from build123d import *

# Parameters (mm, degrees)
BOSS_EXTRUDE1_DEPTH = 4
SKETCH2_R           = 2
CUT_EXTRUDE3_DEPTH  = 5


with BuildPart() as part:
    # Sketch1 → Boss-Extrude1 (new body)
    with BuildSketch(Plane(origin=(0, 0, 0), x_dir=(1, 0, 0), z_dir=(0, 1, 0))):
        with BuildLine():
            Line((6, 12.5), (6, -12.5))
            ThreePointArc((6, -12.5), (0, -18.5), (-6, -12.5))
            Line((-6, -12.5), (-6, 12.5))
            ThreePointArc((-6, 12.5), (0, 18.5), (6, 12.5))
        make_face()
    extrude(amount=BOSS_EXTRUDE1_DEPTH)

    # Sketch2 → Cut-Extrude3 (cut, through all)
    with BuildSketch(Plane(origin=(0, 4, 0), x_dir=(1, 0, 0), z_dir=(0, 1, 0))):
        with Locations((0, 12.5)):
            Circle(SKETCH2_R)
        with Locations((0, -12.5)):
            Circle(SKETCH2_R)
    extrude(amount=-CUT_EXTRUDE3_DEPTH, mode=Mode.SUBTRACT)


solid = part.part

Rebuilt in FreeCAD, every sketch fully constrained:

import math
import FreeCAD as App
import Part
import Sketcher
Q = App.Units.Quantity

doc = App.newDocument("Part")
body = doc.addObject("PartDesign::Body", "Body")

# Sketch on XZ plane
sketch1 = body.newObject("Sketcher::SketchObject", "Sketch")
sketch1.AttachmentSupport = (doc.getObject("XZ_Plane"), [""])
sketch1.MapMode = "FlatFace"
sketch1.addGeometry([
    Part.LineSegment(App.Vector(6, 12, 0), App.Vector(6, -12, 0)),
    Part.ArcOfCircle(Part.Circle(App.Vector(0, -12, 0), App.Vector(0, 0, 1), 6), math.radians(180), math.radians(360)),
    Part.LineSegment(App.Vector(-6, -12, 0), App.Vector(-6, 12, 0)),
    Part.ArcOfCircle(Part.Circle(App.Vector(0, 12, 0), App.Vector(0, 0, 1), 6), math.radians(0), math.radians(180)),
], False)
sketch1.addConstraint([
    Sketcher.Constraint("Tangent", 0, 2, 1, 2),
    Sketcher.Constraint("Tangent", 1, 1, 2, 1),
    Sketcher.Constraint("Tangent", 2, 2, 3, 2),
    Sketcher.Constraint("Tangent", 3, 1, 0, 1),
    Sketcher.Constraint("Vertical", 0),
    Sketcher.Constraint("Vertical", 2),
    Sketcher.Constraint("Symmetric", 1, 3, 3, 3, -1, 1),
    Sketcher.Constraint("Radius", 1, Q("6 mm")),
    Sketcher.Constraint("DistanceY", 0, 2, 0, 1, Q("25 mm")),
])
pad1 = body.newObject("PartDesign::Pad", "Pad")
pad1.Profile = sketch1
pad1.Length = 4
pad1.Reversed = True

# Sketch on XZ plane
sketch2 = body.newObject("Sketcher::SketchObject", "Sketch001")
sketch2.AttachmentSupport = (doc.getObject("XZ_Plane"), [""])
sketch2.MapMode = "FlatFace"
sketch2.AttachmentOffset = App.Placement(App.Vector(0, 0, -4), App.Rotation())
sketch2.addGeometry([
    Part.Circle(App.Vector(0, -12.5, 0), App.Vector(0, 0, 1), 2),
    Part.Circle(App.Vector(0, 12.5, 0), App.Vector(0, 0, 1), 2),
], False)
sketch2.addConstraint([
    Sketcher.Constraint("Equal", 0, 1),
    Sketcher.Constraint("Symmetric", 0, 3, 1, 3, -1, 1),
    Sketcher.Constraint("PointOnObject", 0, 3, -2),
    Sketcher.Constraint("Diameter", 0, Q("4 mm")),
    Sketcher.Constraint("DistanceY", 0, 3, 1, 3, Q("25 mm")),
])
pocket1 = body.newObject("PartDesign::Pocket", "Pocket")
pocket1.Profile = sketch2
pocket1.Type = "ThroughAll"
pocket1.Reversed = True

doc.recompute()
